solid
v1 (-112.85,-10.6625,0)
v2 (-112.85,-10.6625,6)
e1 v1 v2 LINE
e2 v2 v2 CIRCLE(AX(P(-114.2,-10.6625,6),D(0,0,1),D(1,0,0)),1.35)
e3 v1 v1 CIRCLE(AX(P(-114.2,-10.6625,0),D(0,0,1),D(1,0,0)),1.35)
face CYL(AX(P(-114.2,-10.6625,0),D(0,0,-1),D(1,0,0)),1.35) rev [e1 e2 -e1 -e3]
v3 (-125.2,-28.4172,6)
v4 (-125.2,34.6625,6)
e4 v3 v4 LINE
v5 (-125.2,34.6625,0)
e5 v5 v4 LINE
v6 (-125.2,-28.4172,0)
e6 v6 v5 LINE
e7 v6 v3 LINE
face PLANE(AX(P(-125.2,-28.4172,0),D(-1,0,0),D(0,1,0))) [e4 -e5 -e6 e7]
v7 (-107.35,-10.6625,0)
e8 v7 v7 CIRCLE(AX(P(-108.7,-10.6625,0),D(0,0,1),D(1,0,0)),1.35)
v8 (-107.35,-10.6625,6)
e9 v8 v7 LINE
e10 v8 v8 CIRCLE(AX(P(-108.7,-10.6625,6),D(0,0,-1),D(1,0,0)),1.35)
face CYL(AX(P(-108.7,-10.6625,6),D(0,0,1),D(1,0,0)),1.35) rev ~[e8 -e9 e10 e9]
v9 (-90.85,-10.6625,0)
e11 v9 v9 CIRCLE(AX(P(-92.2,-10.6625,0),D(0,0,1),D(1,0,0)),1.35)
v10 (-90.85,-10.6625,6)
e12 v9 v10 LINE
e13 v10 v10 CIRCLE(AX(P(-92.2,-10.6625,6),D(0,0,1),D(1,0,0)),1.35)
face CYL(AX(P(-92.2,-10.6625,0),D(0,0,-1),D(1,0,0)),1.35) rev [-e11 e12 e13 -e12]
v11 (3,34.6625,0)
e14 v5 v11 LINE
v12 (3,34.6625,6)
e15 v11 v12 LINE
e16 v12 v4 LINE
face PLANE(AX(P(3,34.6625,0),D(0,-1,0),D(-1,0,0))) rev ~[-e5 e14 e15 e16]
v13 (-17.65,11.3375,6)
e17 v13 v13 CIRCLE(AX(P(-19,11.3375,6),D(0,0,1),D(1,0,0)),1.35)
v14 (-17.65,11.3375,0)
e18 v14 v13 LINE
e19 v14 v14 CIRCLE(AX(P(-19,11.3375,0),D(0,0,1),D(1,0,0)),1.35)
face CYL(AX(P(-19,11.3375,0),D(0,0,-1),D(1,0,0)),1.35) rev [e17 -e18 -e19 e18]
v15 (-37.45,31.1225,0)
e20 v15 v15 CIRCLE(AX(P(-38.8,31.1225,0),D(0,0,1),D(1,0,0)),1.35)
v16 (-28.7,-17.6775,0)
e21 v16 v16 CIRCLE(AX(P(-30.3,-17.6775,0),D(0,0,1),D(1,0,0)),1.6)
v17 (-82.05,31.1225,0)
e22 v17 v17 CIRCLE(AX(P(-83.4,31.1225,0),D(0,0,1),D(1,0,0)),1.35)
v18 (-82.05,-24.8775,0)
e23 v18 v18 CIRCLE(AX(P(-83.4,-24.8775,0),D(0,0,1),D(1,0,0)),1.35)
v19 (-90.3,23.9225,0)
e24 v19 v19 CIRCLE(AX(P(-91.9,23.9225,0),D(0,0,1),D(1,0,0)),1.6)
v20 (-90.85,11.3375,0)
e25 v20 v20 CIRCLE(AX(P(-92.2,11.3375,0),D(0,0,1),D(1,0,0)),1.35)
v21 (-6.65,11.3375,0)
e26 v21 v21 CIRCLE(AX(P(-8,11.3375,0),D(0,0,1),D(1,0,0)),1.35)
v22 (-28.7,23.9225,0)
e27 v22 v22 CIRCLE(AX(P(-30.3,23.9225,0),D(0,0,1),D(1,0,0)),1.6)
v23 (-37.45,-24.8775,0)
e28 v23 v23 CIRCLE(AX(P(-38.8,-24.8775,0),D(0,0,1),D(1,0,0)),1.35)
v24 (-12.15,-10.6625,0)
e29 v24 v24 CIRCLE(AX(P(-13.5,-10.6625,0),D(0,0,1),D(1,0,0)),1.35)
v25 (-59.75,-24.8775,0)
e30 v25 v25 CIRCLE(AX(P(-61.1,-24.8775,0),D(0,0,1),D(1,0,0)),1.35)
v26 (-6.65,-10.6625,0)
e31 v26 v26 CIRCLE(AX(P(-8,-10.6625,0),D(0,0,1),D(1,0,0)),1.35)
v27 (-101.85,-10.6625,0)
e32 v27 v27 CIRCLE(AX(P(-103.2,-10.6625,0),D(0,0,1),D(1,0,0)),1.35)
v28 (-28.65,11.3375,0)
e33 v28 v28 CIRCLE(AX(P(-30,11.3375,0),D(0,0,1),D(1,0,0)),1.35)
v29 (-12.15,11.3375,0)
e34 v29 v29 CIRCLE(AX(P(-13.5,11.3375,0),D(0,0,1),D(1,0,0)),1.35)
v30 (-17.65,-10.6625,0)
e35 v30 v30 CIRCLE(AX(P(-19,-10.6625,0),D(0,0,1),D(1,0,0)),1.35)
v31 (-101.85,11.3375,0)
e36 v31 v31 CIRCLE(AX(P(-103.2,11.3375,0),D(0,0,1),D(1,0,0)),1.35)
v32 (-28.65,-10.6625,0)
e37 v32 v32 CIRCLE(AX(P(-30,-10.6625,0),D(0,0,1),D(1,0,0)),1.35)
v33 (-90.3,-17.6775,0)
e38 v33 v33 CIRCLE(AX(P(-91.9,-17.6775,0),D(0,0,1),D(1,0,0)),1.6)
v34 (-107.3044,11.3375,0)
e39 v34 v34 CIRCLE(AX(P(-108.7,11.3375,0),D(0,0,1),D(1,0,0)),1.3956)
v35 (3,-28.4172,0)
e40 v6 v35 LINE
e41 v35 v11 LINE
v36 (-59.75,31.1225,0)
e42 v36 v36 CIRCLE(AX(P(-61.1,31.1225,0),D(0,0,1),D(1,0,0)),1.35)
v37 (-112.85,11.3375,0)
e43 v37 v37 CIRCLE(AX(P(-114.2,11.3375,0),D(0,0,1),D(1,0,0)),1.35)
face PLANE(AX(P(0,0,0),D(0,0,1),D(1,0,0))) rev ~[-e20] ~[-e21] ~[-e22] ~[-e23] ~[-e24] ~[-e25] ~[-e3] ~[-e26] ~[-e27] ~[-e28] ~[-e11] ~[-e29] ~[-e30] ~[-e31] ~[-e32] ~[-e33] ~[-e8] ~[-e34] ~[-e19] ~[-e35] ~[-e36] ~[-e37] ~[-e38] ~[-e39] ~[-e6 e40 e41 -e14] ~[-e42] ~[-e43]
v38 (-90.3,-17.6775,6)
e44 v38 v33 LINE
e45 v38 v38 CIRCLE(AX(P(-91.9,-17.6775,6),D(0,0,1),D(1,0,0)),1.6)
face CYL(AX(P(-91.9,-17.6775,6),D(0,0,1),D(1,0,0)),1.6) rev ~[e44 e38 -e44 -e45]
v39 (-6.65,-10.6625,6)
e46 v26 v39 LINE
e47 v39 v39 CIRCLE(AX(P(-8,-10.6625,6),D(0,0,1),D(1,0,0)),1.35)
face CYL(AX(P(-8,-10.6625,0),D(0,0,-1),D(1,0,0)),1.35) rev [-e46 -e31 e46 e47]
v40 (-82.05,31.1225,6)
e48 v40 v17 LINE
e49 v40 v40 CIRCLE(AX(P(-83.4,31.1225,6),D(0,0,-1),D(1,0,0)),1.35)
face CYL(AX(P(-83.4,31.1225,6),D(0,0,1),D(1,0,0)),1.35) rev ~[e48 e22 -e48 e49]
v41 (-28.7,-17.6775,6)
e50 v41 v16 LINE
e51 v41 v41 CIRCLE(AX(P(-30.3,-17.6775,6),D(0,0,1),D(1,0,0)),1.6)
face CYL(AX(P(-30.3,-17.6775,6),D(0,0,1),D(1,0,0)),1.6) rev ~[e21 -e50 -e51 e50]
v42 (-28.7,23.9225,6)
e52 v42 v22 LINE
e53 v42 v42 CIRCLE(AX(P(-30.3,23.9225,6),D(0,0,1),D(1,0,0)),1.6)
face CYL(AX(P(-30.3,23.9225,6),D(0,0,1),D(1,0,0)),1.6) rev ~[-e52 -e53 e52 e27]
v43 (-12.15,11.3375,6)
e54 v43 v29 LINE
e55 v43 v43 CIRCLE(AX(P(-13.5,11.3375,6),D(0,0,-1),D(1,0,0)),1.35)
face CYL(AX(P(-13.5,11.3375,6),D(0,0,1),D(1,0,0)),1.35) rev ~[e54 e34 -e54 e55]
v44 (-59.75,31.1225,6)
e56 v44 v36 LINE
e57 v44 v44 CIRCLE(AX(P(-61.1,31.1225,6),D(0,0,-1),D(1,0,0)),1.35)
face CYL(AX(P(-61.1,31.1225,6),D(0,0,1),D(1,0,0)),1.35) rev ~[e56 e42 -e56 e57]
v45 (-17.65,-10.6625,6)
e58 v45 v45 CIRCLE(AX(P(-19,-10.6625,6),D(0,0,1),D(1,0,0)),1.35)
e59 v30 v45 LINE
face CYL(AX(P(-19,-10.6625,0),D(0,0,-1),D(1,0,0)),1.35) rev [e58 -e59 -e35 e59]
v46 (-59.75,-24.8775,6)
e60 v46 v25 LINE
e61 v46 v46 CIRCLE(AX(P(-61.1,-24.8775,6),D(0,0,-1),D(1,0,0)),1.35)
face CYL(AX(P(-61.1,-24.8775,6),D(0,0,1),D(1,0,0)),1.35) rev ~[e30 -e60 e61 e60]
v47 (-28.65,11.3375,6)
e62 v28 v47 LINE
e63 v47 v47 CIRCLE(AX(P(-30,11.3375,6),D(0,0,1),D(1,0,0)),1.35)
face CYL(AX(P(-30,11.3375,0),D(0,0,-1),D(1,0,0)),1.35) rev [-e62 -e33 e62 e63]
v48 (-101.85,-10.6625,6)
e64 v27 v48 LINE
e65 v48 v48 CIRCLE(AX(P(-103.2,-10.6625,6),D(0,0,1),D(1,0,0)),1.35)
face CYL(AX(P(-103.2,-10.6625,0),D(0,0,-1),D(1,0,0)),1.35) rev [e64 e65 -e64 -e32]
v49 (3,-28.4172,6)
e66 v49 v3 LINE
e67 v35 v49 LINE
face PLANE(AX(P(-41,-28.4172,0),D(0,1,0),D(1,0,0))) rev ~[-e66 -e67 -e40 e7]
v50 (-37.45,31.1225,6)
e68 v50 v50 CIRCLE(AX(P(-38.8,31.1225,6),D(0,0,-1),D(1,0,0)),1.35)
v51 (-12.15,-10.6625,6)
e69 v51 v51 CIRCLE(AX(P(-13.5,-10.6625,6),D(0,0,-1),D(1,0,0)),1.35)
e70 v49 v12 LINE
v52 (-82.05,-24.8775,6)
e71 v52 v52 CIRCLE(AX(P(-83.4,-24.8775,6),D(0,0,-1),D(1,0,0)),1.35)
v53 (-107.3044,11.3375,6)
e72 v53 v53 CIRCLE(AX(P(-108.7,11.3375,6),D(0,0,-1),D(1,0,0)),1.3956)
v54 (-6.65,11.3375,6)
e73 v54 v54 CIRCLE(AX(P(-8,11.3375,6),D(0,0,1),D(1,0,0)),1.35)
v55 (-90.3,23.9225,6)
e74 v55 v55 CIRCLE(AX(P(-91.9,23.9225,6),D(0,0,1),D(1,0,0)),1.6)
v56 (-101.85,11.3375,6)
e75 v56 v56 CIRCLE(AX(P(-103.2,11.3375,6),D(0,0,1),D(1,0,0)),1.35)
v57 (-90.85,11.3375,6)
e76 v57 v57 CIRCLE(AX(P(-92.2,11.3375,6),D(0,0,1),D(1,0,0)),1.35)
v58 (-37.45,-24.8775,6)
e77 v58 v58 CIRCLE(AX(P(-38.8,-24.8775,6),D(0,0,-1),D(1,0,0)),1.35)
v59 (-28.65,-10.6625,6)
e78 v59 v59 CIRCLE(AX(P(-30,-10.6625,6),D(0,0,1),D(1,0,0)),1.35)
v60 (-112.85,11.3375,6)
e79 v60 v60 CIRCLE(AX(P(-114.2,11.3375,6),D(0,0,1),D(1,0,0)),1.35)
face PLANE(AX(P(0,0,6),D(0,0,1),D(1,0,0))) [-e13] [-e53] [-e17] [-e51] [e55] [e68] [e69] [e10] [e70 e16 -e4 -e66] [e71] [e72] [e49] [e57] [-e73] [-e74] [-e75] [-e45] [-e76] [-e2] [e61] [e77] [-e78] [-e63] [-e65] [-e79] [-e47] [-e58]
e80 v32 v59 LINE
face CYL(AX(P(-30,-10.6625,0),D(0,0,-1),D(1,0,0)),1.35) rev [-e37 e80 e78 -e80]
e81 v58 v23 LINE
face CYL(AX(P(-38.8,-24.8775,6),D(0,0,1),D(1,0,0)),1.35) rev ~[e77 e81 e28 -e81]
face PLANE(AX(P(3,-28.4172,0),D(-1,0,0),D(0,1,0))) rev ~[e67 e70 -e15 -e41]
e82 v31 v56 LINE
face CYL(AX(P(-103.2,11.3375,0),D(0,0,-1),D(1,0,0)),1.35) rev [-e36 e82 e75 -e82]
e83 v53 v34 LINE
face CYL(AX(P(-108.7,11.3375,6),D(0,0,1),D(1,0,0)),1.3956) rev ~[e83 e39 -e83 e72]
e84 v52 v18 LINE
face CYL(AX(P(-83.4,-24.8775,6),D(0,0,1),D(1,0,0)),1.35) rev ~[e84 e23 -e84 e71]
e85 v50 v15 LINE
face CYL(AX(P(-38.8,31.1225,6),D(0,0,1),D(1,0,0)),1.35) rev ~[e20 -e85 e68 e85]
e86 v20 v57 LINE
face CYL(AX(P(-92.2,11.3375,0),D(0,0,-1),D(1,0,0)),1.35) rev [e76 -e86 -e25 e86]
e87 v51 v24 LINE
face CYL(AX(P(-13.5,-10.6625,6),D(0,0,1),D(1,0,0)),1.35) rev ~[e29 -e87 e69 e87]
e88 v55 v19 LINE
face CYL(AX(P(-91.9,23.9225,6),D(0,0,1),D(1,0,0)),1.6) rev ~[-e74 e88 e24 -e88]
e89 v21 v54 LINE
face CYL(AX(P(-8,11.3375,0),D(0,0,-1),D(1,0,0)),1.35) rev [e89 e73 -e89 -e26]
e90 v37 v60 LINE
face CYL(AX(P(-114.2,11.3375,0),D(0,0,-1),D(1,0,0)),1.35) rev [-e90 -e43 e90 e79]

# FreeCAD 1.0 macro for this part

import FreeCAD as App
import Part
import Sketcher

doc = App.newDocument("Part")
body = doc.addObject("PartDesign::Body", "Body")

sketch1 = body.newObject("Sketcher::SketchObject", "Sketch")
sketch1.AttachmentSupport = (doc.getObject("XY_Plane"), [""])
sketch1.MapMode = "FlatFace"
sketch1.addGeometry(Part.LineSegment(App.Vector(3, -28.4, 0), App.Vector(3, 34.7, 0)), False)
sketch1.addGeometry(Part.LineSegment(App.Vector(3, 34.7, 0), App.Vector(-125.2, 34.7, 0)), False)
sketch1.addGeometry(Part.LineSegment(App.Vector(-125.2, 34.7, 0), App.Vector(-125.2, -28.4, 0)), False)
sketch1.addGeometry(Part.LineSegment(App.Vector(-125.2, -28.4, 0), App.Vector(3, -28.4, 0)), False)
sketch1.addGeometry(Part.Circle(App.Vector(-30, -10.7, 0), App.Vector(0, 0, 1), 1.4), False)
sketch1.addGeometry(Part.Circle(App.Vector(-19, -10.7, 0), App.Vector(0, 0, 1), 1.4), False)
sketch1.addGeometry(Part.Circle(App.Vector(-8, -10.7, 0), App.Vector(0, 0, 1), 1.4), False)
sketch1.addGeometry(Part.Circle(App.Vector(-30, 11.3, 0), App.Vector(0, 0, 1), 1.4), False)
sketch1.addGeometry(Part.Circle(App.Vector(-19, 11.3, 0), App.Vector(0, 0, 1), 1.4), False)
sketch1.addGeometry(Part.Circle(App.Vector(-8, 11.3, 0), App.Vector(0, 0, 1), 1.4), False)
sketch1.addGeometry(Part.Circle(App.Vector(-92.2, 11.3, 0), App.Vector(0, 0, 1), 1.4), False)
sketch1.addGeometry(Part.Circle(App.Vector(-114.2, -10.7, 0), App.Vector(0, 0, 1), 1.4), False)
sketch1.addGeometry(Part.Circle(App.Vector(-103.2, -10.7, 0), App.Vector(0, 0, 1), 1.4), False)
sketch1.addGeometry(Part.Circle(App.Vector(-92.2, -10.7, 0), App.Vector(0, 0, 1), 1.4), False)
sketch1.addGeometry(Part.Circle(App.Vector(-114.2, 11.3, 0), App.Vector(0, 0, 1), 1.4), False)
sketch1.addGeometry(Part.Circle(App.Vector(-103.2, 11.3, 0), App.Vector(0, 0, 1), 1.4), False)
sketch1.addConstraint(Sketcher.Constraint("Coincident", 0, 2, 1, 1))
sketch1.addConstraint(Sketcher.Constraint("Coincident", 1, 2, 2, 1))
sketch1.addConstraint(Sketcher.Constraint("Coincident", 2, 2, 3, 1))
sketch1.addConstraint(Sketcher.Constraint("Coincident", 3, 2, 0, 1))
sketch1.addConstraint(Sketcher.Constraint("Vertical", 0))
sketch1.addConstraint(Sketcher.Constraint("Horizontal", 1))
sketch1.addConstraint(Sketcher.Constraint("Vertical", 2))
sketch1.addConstraint(Sketcher.Constraint("Horizontal", 3))
sketch1.addConstraint(Sketcher.Constraint("Equal", 4, 5))
sketch1.addConstraint(Sketcher.Constraint("Equal", 5, 6))
sketch1.addConstraint(Sketcher.Constraint("Equal", 6, 7))
sketch1.addConstraint(Sketcher.Constraint("Equal", 7, 8))
sketch1.addConstraint(Sketcher.Constraint("Equal", 8, 9))
sketch1.addConstraint(Sketcher.Constraint("Equal", 9, 10))
sketch1.addConstraint(Sketcher.Constraint("Equal", 10, 11))
sketch1.addConstraint(Sketcher.Constraint("Equal", 11, 12))
sketch1.addConstraint(Sketcher.Constraint("Equal", 12, 13))
sketch1.addConstraint(Sketcher.Constraint("Equal", 13, 14))
sketch1.addConstraint(Sketcher.Constraint("Equal", 14, 15))
sketch1.addConstraint(Sketcher.Constraint("Horizontal", 4, 3, 5, 3))
sketch1.addConstraint(Sketcher.Constraint("Horizontal", 5, 3, 6, 3))
sketch1.addConstraint(Sketcher.Constraint("Horizontal", 7, 3, 8, 3))
sketch1.addConstraint(Sketcher.Constraint("Horizontal", 8, 3, 9, 3))
sketch1.addConstraint(Sketcher.Constraint("Horizontal", 9, 3, 10, 3))
sketch1.addConstraint(Sketcher.Constraint("Horizontal", 6, 3, 11, 3))
sketch1.addConstraint(Sketcher.Constraint("Horizontal", 11, 3, 12, 3))
sketch1.addConstraint(Sketcher.Constraint("Horizontal", 12, 3, 13, 3))
sketch1.addConstraint(Sketcher.Constraint("Horizontal", 10, 3, 14, 3))
sketch1.addConstraint(Sketcher.Constraint("Horizontal", 14, 3, 15, 3))
sketch1.addConstraint(Sketcher.Constraint("Vertical", 4, 3, 7, 3))
sketch1.addConstraint(Sketcher.Constraint("Vertical", 5, 3, 8, 3))
sketch1.addConstraint(Sketcher.Constraint("Vertical", 6, 3, 9, 3))
sketch1.addConstraint(Sketcher.Constraint("Vertical", 10, 3, 13, 3))
sketch1.addConstraint(Sketcher.Constraint("Vertical", 11, 3, 14, 3))
sketch1.addConstraint(Sketcher.Constraint("Vertical", 12, 3, 15, 3))
sketch1.addConstraint(Sketcher.Constraint("Diameter", 4, 2.7))
sketch1.addConstraint(Sketcher.Constraint("DistanceX", 1, 2, 1, 1, 128.2))
sketch1.addConstraint(Sketcher.Constraint("DistanceX", 4, 3, -1, 1, 30.0))
sketch1.addConstraint(Sketcher.Constraint("DistanceX", 5, 3, -1, 1, 19.0))
sketch1.addConstraint(Sketcher.Constraint("DistanceX", 6, 3, -1, 1, 8.0))
sketch1.addConstraint(Sketcher.Constraint("DistanceX", -1, 1, 0, 2, 3.0))
sketch1.addConstraint(Sketcher.Constraint("DistanceY", 4, 3, 7, 3, 22.0))
sketch1.addConstraint(Sketcher.Constraint("DistanceX", 11, 3, 10, 3, 22.0))
sketch1.addConstraint(Sketcher.Constraint("DistanceX", 11, 3, 12, 3, 11.0))
sketch1.addConstraint(Sketcher.Constraint("DistanceX", 1, 2, 14, 3, 11.0))
sketch1.addConstraint(Sketcher.Constraint("DistanceY", 0, 1, 0, 2, 63.0797))
sketch1.addConstraint(Sketcher.Constraint("DistanceY", 9, 3, 0, 2, 23.325))
sketch1.addConstraint(Sketcher.Constraint("DistanceY", 4, 3, -1, 1, 10.6625))
pad1 = body.newObject("PartDesign::Pad", "Pad")
pad1.Profile = sketch1
pad1.Length = 6

sketch2 = body.newObject("Sketcher::SketchObject", "Sketch001")
sketch2.AttachmentSupport = (doc.getObject("XY_Plane"), [""])
sketch2.MapMode = "FlatFace"
sketch2.AttachmentOffset = App.Placement(App.Vector(0, 0, 6), App.Rotation())
sketch2.addGeometry(Part.Circle(App.Vector(-83.4, 31.1, 0), App.Vector(0, 0, 1), 1.4), False)
sketch2.addGeometry(Part.Circle(App.Vector(-61.1, 31.1, 0), App.Vector(0, 0, 1), 1.4), False)
sketch2.addGeometry(Part.Circle(App.Vector(-83.4, -24.9, 0), App.Vector(0, 0, 1), 1.4), False)
sketch2.addGeometry(Part.Circle(App.Vector(-38.8, 31.1, 0), App.Vector(0, 0, 1), 1.4), False)
sketch2.addGeometry(Part.Circle(App.Vector(-61.1, -24.9, 0), App.Vector(0, 0, 1), 1.4), False)
sketch2.addGeometry(Part.Circle(App.Vector(-108.7, 11.3, 0), App.Vector(0, 0, 1), 1.4), False)
sketch2.addGeometry(Part.Circle(App.Vector(-38.8, -24.9, 0), App.Vector(0, 0, 1), 1.4), False)
sketch2.addGeometry(Part.Circle(App.Vector(-108.7, -10.7, 0), App.Vector(0, 0, 1), 1.4), False)
sketch2.addGeometry(Part.Circle(App.Vector(-13.5, 11.3, 0), App.Vector(0, 0, 1), 1.4), False)
sketch2.addGeometry(Part.Circle(App.Vector(-13.5, -10.7, 0), App.Vector(0, 0, 1), 1.4), False)
sketch2.addConstraint(Sketcher.Constraint("Equal", 0, 1))
sketch2.addConstraint(Sketcher.Constraint("Equal", 1, 2))
sketch2.addConstraint(Sketcher.Constraint("Equal", 2, 3))
sketch2.addConstraint(Sketcher.Constraint("Equal", 3, 4))
sketch2.addConstraint(Sketcher.Constraint("Equal", 4, 6))
sketch2.addConstraint(Sketcher.Constraint("Equal", 6, 7))
sketch2.addConstraint(Sketcher.Constraint("Equal", 7, 8))
sketch2.addConstraint(Sketcher.Constraint("Equal", 8, 9))
sketch2.addConstraint(Sketcher.Constraint("Horizontal", 0, 3, 1, 3))
sketch2.addConstraint(Sketcher.Constraint("Horizontal", 1, 3, 3, 3))
sketch2.addConstraint(Sketcher.Constraint("Horizontal", 2, 3, 4, 3))
sketch2.addConstraint(Sketcher.Constraint("Horizontal", 4, 3, 6, 3))
sketch2.addConstraint(Sketcher.Constraint("Horizontal", 5, 3, 8, 3))
sketch2.addConstraint(Sketcher.Constraint("Horizontal", 7, 3, 9, 3))
sketch2.addConstraint(Sketcher.Constraint("Vertical", 0, 3, 2, 3))
sketch2.addConstraint(Sketcher.Constraint("Vertical", 1, 3, 4, 3))
sketch2.addConstraint(Sketcher.Constraint("Vertical", 3, 3, 6, 3))
sketch2.addConstraint(Sketcher.Constraint("Vertical", 5, 3, 7, 3))
sketch2.addConstraint(Sketcher.Constraint("Vertical", 8, 3, 9, 3))
sketch2.addConstraint(Sketcher.Constraint("Diameter", 0, 2.7))
sketch2.addConstraint(Sketcher.Constraint("DistanceX", 0, 3, 1, 3, 22.3))
sketch2.addConstraint(Sketcher.Constraint("DistanceX", 1, 3, 3, 3, 22.3))
sketch2.addConstraint(Sketcher.Constraint("DistanceY", 2, 3, 0, 3, 56.0))
sketch2.addConstraint(Sketcher.Constraint("DistanceY", 7, 3, 5, 3, 22.0))
sketch2.addConstraint(Sketcher.Constraint("Diameter", 5, 2.7912))
sketch2.addConstraint(Sketcher.Constraint("DistanceX", 0, 3, -1, 1, 83.4))
sketch2.addConstraint(Sketcher.Constraint("DistanceX", 5, 3, -1, 1, 108.7))
sketch2.addConstraint(Sketcher.Constraint("DistanceX", 8, 3, -1, 1, 13.5))
sketch2.addConstraint(Sketcher.Constraint("DistanceY", 5, 3, 0, 3, 19.785))
sketch2.addConstraint(Sketcher.Constraint("DistanceY", -1, 1, 0, 3, 31.1225))
pocket1 = body.newObject("PartDesign::Pocket", "Pocket")
pocket1.Profile = sketch2
pocket1.Length = 6

sketch3 = body.newObject("Sketcher::SketchObject", "Sketch002")
sketch3.AttachmentSupport = (doc.getObject("XY_Plane"), [""])
sketch3.MapMode = "FlatFace"
sketch3.AttachmentOffset = App.Placement(App.Vector(0, 0, 6), App.Rotation())
sketch3.addGeometry(Part.Circle(App.Vector(-91.9, 23.9, 0), App.Vector(0, 0, 1), 1.6), False)
sketch3.addGeometry(Part.Circle(App.Vector(-91.9, -17.7, 0), App.Vector(0, 0, 1), 1.6), False)
sketch3.addGeometry(Part.Circle(App.Vector(-30.3, 23.9, 0), App.Vector(0, 0, 1), 1.6), False)
sketch3.addGeometry(Part.Circle(App.Vector(-30.3, -17.7, 0), App.Vector(0, 0, 1), 1.6), False)
sketch3.addConstraint(Sketcher.Constraint("Equal", 0, 1))
sketch3.addConstraint(Sketcher.Constraint("Equal", 1, 2))
sketch3.addConstraint(Sketcher.Constraint("Equal", 2, 3))
sketch3.addConstraint(Sketcher.Constraint("Horizontal", 0, 3, 2, 3))
sketch3.addConstraint(Sketcher.Constraint("Horizontal", 1, 3, 3, 3))
sketch3.addConstraint(Sketcher.Constraint("Vertical", 0, 3, 1, 3))
sketch3.addConstraint(Sketcher.Constraint("Vertical", 2, 3, 3, 3))
sketch3.addConstraint(Sketcher.Constraint("Diameter", 0, 3.2))
sketch3.addConstraint(Sketcher.Constraint("DistanceX", 0, 3, -1, 1, 91.9))
sketch3.addConstraint(Sketcher.Constraint("DistanceX", 2, 3, -1, 1, 30.3))
sketch3.addConstraint(Sketcher.Constraint("DistanceY", 1, 3, 0, 3, 41.6))
sketch3.addConstraint(Sketcher.Constraint("DistanceY", -1, 1, 0, 3, 23.9225))
pocket2 = body.newObject("PartDesign::Pocket", "Pocket001")
pocket2.Profile = sketch3
pocket2.Length = 6

doc.recompute()
